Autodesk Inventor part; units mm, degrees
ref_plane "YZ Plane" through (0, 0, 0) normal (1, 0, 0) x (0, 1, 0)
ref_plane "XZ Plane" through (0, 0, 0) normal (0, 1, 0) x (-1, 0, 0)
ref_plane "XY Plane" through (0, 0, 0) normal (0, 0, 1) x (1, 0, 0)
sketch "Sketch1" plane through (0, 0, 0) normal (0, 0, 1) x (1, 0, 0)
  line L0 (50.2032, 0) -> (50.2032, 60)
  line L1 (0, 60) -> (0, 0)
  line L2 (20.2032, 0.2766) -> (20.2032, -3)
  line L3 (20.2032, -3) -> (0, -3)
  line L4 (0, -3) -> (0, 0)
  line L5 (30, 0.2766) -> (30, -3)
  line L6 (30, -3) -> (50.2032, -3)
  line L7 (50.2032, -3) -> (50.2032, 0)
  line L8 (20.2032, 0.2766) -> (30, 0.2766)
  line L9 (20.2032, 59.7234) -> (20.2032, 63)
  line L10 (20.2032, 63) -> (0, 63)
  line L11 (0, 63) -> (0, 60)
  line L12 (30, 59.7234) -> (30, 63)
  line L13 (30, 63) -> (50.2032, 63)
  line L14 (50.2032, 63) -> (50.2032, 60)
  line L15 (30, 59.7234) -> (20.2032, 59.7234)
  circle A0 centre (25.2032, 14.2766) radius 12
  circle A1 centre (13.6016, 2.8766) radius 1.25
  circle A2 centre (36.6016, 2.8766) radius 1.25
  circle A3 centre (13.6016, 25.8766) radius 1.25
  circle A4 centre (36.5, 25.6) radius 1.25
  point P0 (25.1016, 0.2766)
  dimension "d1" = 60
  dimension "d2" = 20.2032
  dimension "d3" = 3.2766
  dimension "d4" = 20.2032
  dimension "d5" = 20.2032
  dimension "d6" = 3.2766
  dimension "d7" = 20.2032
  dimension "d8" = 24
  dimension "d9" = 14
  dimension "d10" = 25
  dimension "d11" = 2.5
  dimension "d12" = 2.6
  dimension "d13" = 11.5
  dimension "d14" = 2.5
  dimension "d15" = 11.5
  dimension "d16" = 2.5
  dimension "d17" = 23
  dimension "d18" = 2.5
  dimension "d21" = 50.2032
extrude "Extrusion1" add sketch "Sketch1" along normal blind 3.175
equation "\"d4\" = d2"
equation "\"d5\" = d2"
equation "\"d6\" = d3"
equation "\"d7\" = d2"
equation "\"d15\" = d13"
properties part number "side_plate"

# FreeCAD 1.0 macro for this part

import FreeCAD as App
import Part
import Sketcher
from FreeCAD import Vector

doc = App.newDocument("Part")
body = doc.addObject("PartDesign::Body", "Body")

sketch1 = body.newObject("Sketcher::SketchObject", "Sketch")
sketch1.AttachmentSupport = (doc.getObject("XY_Plane"), [""])
sketch1.MapMode = "FlatFace"
sketch1.addGeometry([
    Part.LineSegment(Vector(50.2, -3, 0), Vector(50.2, 63, 0)),
    Part.LineSegment(Vector(50.2, 63, 0), Vector(30, 63, 0)),
    Part.LineSegment(Vector(30, 63, 0), Vector(30, 59.7, 0)),
    Part.LineSegment(Vector(30, 59.7, 0), Vector(20.2, 59.7, 0)),
    Part.LineSegment(Vector(20.2, 59.7, 0), Vector(20.2, 63, 0)),
    Part.LineSegment(Vector(20.2, 63, 0), Vector(0, 63, 0)),
    Part.LineSegment(Vector(0, 63, 0), Vector(0, -3, 0)),
    Part.LineSegment(Vector(0, -3, 0), Vector(20.2, -3, 0)),
    Part.LineSegment(Vector(20.2, -3, 0), Vector(20.2, 0.3, 0)),
    Part.LineSegment(Vector(20.2, 0.3, 0), Vector(30, 0.3, 0)),
    Part.LineSegment(Vector(30, 0.3, 0), Vector(30, -3, 0)),
    Part.LineSegment(Vector(30, -3, 0), Vector(50.2, -3, 0)),
    Part.Circle(Vector(13.6, 2.9, 0), Vector(0, 0, 1), 1.2),
    Part.Circle(Vector(13.6, 25.9, 0), Vector(0, 0, 1), 1.2),
    Part.Circle(Vector(36.6, 2.9, 0), Vector(0, 0, 1), 1.2),
    Part.Circle(Vector(25.2, 14.3, 0), Vector(0, 0, 1), 12),
    Part.Circle(Vector(36.5, 25.6, 0), Vector(0, 0, 1), 1.2),
], False)
sketch1.addConstraint([
    Sketcher.Constraint("Coincident", 0, 2, 1, 1),
    Sketcher.Constraint("Coincident", 1, 2, 2, 1),
    Sketcher.Constraint("Coincident", 2, 2, 3, 1),
    Sketcher.Constraint("Coincident", 3, 2, 4, 1),
    Sketcher.Constraint("Coincident", 4, 2, 5, 1),
    Sketcher.Constraint("Coincident", 5, 2, 6, 1),
    Sketcher.Constraint("Coincident", 6, 2, 7, 1),
    Sketcher.Constraint("Coincident", 7, 2, 8, 1),
    Sketcher.Constraint("Coincident", 8, 2, 9, 1),
    Sketcher.Constraint("Coincident", 9, 2, 10, 1),
    Sketcher.Constraint("Coincident", 10, 2, 11, 1),
    Sketcher.Constraint("Coincident", 11, 2, 0, 1),
    Sketcher.Constraint("Vertical", 0),
    Sketcher.Constraint("Horizontal", 1),
    Sketcher.Constraint("Vertical", 2),
    Sketcher.Constraint("Horizontal", 3),
    Sketcher.Constraint("Vertical", 4),
    Sketcher.Constraint("Horizontal", 5),
    Sketcher.Constraint("Vertical", 6),
    Sketcher.Constraint("Horizontal", 7),
    Sketcher.Constraint("Vertical", 8),
    Sketcher.Constraint("Horizontal", 9),
    Sketcher.Constraint("Vertical", 10),
    Sketcher.Constraint("Horizontal", 11),
    Sketcher.Constraint("Equal", 12, 13),
    Sketcher.Constraint("Equal", 13, 14),
    Sketcher.Constraint("Equal", 14, 16),
    Sketcher.Constraint("PointOnObject", 5, 2, -2),
    Sketcher.Constraint("Horizontal", 12, 3, 14, 3),
    Sketcher.Constraint("Horizontal", 1, 2, 4, 2),
    Sketcher.Constraint("Horizontal", 7, 2, 10, 2),
    Sketcher.Constraint("Vertical", 12, 3, 13, 3),
    Sketcher.Constraint("Vertical", 4, 2, 7, 2),
    Sketcher.Constraint("Vertical", 2, 2, 9, 2),
    Sketcher.Constraint("Equal", 1, 5),
    Sketcher.Constraint("Equal", 4, 8),
    Sketcher.Constraint("Diameter", 15, 24.0),
    Sketcher.Constraint("Diameter", 12, 2.5),
    Sketcher.Constraint("DistanceY", 12, 3, 13, 3, 23.0),
    Sketcher.Constraint("DistanceX", 12, 3, 14, 3, 23.0),
    Sketcher.Constraint("DistanceX", 15, 3, 0, 2, 25.0),
    Sketcher.Constraint("DistanceY", 8, 2, 15, 3, 14.0),
    Sketcher.Constraint("DistanceY", 8, 2, 12, 3, 2.6),
    Sketcher.Constraint("DistanceY", 0, 1, 0, 2, 66.0),
    Sketcher.Constraint("DistanceX", 1, 2, 1, 1, 20.2032),
    Sketcher.Constraint("DistanceY", 2, 2, 2, 1, 3.2766),
    Sketcher.Constraint("DistanceY", -1, 1, 0, 2, 63.0),
    Sketcher.Constraint("DistanceX", -1, 1, 1, 2, 30.0),
    Sketcher.Constraint("DistanceX", -1, 1, 16, 3, 36.5),
    Sketcher.Constraint("DistanceY", -1, 1, 16, 3, 25.6),
    Sketcher.Constraint("DistanceX", -1, 1, 12, 3, 13.6016),
])
pad1 = body.newObject("PartDesign::Pad", "Pad")
pad1.Profile = sketch1
pad1.Length = 3.175

doc.recompute()
